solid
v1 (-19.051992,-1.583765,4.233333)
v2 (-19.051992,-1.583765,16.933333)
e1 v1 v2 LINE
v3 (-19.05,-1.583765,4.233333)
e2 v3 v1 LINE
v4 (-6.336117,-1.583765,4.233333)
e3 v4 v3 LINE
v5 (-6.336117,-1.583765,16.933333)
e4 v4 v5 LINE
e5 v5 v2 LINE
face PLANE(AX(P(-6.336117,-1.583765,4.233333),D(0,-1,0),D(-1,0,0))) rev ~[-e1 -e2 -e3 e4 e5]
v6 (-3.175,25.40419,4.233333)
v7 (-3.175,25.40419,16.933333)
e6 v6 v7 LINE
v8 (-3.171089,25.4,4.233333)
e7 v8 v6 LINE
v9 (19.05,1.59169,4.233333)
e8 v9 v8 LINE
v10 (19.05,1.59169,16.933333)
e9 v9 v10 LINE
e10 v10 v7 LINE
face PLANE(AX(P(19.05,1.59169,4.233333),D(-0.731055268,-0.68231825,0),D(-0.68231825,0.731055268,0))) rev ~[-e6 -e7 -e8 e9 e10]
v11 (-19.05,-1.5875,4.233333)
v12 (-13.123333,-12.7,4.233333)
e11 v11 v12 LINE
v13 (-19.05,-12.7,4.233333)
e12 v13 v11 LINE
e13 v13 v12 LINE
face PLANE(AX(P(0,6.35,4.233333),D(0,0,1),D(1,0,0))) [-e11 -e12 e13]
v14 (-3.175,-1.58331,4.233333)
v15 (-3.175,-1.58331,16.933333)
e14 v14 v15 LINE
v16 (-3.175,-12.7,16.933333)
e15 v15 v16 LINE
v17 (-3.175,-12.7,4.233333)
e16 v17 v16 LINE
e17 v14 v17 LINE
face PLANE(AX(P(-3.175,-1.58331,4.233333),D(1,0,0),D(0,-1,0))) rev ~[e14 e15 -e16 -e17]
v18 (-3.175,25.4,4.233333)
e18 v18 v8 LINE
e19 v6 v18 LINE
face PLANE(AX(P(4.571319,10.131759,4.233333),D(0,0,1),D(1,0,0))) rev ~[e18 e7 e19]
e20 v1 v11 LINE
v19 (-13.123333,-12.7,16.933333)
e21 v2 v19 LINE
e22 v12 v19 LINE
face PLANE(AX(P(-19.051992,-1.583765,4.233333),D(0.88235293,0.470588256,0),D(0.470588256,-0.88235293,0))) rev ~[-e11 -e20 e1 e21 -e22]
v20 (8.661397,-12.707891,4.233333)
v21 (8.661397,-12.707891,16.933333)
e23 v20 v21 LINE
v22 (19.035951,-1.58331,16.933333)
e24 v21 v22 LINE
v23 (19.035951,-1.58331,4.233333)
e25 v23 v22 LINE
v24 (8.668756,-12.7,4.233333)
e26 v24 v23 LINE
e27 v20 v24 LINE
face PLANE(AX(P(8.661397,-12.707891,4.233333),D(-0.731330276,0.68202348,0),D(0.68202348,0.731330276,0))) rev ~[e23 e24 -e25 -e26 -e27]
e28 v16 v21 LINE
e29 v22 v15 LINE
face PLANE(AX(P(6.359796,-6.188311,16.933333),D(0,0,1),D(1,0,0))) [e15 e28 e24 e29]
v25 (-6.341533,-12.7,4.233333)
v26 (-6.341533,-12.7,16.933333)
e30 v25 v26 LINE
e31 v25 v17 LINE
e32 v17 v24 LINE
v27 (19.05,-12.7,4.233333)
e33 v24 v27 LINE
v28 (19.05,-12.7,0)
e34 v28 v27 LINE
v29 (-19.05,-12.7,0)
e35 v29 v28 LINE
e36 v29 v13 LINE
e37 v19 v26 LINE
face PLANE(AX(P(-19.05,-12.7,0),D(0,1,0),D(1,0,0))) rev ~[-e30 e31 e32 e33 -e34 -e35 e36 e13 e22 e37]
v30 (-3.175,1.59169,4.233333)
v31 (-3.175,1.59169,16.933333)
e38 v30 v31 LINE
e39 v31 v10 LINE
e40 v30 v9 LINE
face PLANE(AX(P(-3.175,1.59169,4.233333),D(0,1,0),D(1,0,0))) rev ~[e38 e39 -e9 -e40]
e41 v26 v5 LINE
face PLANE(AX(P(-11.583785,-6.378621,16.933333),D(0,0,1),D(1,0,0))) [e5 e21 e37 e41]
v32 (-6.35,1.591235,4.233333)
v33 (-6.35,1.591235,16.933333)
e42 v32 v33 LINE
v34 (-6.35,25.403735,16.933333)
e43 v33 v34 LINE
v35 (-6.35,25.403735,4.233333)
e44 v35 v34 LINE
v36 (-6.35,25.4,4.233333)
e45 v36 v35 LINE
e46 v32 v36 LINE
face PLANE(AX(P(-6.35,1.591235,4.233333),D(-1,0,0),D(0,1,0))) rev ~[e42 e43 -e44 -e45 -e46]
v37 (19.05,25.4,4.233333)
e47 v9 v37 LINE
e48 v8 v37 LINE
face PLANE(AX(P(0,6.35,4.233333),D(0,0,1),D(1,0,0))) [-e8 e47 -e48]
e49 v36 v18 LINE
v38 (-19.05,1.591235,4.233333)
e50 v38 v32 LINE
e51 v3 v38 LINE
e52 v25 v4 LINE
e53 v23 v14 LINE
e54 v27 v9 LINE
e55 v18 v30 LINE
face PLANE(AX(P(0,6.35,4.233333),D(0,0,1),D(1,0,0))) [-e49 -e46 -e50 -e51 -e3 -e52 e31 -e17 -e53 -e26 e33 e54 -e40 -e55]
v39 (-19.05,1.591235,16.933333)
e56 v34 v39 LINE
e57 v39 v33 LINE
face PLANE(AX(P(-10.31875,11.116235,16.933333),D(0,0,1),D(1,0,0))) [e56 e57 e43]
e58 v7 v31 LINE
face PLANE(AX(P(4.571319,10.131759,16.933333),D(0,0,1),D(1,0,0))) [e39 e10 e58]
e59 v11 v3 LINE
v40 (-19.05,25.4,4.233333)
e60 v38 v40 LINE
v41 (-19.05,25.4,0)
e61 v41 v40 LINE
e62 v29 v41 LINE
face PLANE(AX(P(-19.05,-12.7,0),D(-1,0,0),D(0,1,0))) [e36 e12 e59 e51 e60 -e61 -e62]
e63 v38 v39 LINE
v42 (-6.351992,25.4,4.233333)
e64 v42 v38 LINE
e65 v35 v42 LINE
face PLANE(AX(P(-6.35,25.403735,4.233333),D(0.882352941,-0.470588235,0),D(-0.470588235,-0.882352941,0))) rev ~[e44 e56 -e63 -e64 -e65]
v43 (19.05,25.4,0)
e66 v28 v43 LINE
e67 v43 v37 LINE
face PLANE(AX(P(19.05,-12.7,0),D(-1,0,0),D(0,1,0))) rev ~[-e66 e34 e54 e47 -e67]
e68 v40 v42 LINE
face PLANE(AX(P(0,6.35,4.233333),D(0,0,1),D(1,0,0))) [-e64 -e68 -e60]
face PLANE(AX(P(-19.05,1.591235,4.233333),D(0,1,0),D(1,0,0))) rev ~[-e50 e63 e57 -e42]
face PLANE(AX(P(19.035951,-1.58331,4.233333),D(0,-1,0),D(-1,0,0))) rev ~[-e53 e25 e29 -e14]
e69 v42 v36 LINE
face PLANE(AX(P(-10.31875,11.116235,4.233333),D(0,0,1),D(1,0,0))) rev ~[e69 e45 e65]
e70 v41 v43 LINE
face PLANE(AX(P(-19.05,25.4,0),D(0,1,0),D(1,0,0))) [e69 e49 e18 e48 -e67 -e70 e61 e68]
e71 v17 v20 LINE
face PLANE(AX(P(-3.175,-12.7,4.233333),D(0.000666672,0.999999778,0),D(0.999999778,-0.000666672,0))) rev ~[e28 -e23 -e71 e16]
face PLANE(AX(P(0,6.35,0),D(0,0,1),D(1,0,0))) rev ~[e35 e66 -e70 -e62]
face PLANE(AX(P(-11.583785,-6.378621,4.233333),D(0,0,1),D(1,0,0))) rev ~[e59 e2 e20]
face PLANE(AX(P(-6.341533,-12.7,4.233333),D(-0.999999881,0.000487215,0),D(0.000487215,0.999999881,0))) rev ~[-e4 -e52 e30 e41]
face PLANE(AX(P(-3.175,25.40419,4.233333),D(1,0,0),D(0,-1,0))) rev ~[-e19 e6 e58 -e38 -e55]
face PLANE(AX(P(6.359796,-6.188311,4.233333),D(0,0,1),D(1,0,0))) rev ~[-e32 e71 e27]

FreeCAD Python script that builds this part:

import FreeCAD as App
import Part
import Sketcher
from FreeCAD import Vector
Q = App.Units.Quantity

doc = App.newDocument("Part")
params = doc.addObject("Spreadsheet::Sheet", "Params")
for row, (alias, value) in enumerate([
    ("sketch1_width", "1.5 in"),
    ("pad1_length", "4.233333 mm"),
    ("sketch2_width", "0.5 in"),
    ("sketch2_width2", "0.267 in"),
    ("sketch2_width3", "0.875 in"),
    ("sketch2_height", "0.9375 in"),
    ("sketch2_length", "0.496 in"),
    ("pad2_length", "0.5 in"),
], start=1):
    params.set(f"A{row}", alias)
    params.set(f"B{row}", "=" + value)
    params.setAlias(f"B{row}", alias)

body = doc.addObject("PartDesign::Body", "Body")

sketch1 = body.newObject("Sketcher::SketchObject", "Sketch")
sketch1.AttachmentSupport = (doc.getObject("XY_Plane"), [""])
sketch1.MapMode = "FlatFace"
sketch1.addGeometry([
    Part.LineSegment(Vector(-19.05, 25.4, 0), Vector(-19.05, -12.7, 0)),
    Part.LineSegment(Vector(-19.05, -12.7, 0), Vector(19.05, -12.7, 0)),
    Part.LineSegment(Vector(19.05, -12.7, 0), Vector(19.05, 25.4, 0)),
    Part.LineSegment(Vector(19.05, 25.4, 0), Vector(-19.05, 25.4, 0)),
], False)
sketch1.addConstraint([
    Sketcher.Constraint("Coincident", 0, 2, 1, 1),
    Sketcher.Constraint("Coincident", 1, 2, 2, 1),
    Sketcher.Constraint("Coincident", 2, 2, 3, 1),
    Sketcher.Constraint("Coincident", 3, 2, 0, 1),
    Sketcher.Constraint("Vertical", 0),
    Sketcher.Constraint("Horizontal", 1),
    Sketcher.Constraint("Vertical", 2),
    Sketcher.Constraint("Horizontal", 3),
    Sketcher.Constraint("Equal", 3, 0),
    Sketcher.Constraint("DistanceX", 1, 1, 1, 2, Q("1.5 in")),
    Sketcher.Constraint("DistanceY", -1, 1, 2, 2, Q("1 in")),
    Sketcher.Constraint("DistanceX", 0, 2, -1, 1, Q("0.75 in")),
])
sketch1.setExpression("Constraints[9]", "Params.sketch1_width")
pad1 = body.newObject("PartDesign::Pad", "Pad")
pad1.Profile = sketch1
pad1.setExpression("Length", "Params.pad1_length")

sketch2 = body.newObject("Sketcher::SketchObject", "Sketch001")
sketch2.AttachmentSupport = (doc.getObject("XY_Plane"), [""])
sketch2.MapMode = "FlatFace"
sketch2.AttachmentOffset = App.Placement(Vector(0, 0, 4.233333), App.Rotation())
sketch2.addGeometry([
    Part.LineSegment(Vector(-19.05, 1.591235, 0), Vector(-6.35, 1.591235, 0)),
    Part.LineSegment(Vector(-6.35, 1.591235, 0), Vector(-6.35, 25.403735, 0)),
    Part.LineSegment(Vector(-6.35, 25.403735, 0), Vector(-19.05, 1.591235, 0)),
    Part.LineSegment(Vector(-6.336117, -1.583765, 0), Vector(-19.051992, -1.583765, 0)),
    Part.LineSegment(Vector(-19.051992, -1.583765, 0), Vector(-13.123333, -12.7, 0)),
    Part.LineSegment(Vector(-13.123333, -12.7, 0), Vector(-6.341533, -12.7, 0)),
    Part.LineSegment(Vector(-6.341533, -12.7, 0), Vector(-6.336117, -1.583765, 0)),
    Part.LineSegment(Vector(19.05, 1.59169, 0), Vector(-3.175, 25.40419, 0)),
    Part.LineSegment(Vector(-3.175, 25.40419, 0), Vector(-3.175, 1.59169, 0)),
    Part.LineSegment(Vector(-3.175, 1.59169, 0), Vector(19.05, 1.59169, 0)),
    Part.LineSegment(Vector(19.035951, -1.58331, 0), Vector(-3.175, -1.58331, 0)),
    Part.LineSegment(Vector(-3.175, -1.58331, 0), Vector(-3.175, -12.7, 0)),
    Part.LineSegment(Vector(-3.175, -12.7, 0), Vector(8.661397, -12.707891, 0)),
    Part.LineSegment(Vector(8.661397, -12.707891, 0), Vector(19.035951, -1.58331, 0)),
], False)
sketch2.addConstraint([
    Sketcher.Constraint("Coincident", 0, 2, 1, 1),
    Sketcher.Constraint("Coincident", 1, 2, 2, 1),
    Sketcher.Constraint("Coincident", 2, 2, 0, 1),
    Sketcher.Constraint("Coincident", 3, 2, 4, 1),
    Sketcher.Constraint("Coincident", 4, 2, 5, 1),
    Sketcher.Constraint("Coincident", 5, 2, 6, 1),
    Sketcher.Constraint("Coincident", 6, 2, 3, 1),
    Sketcher.Constraint("Coincident", 7, 2, 8, 1),
    Sketcher.Constraint("Coincident", 8, 2, 9, 1),
    Sketcher.Constraint("Coincident", 9, 2, 7, 1),
    Sketcher.Constraint("Coincident", 10, 2, 11, 1),
    Sketcher.Constraint("Coincident", 11, 2, 12, 1),
    Sketcher.Constraint("Coincident", 12, 2, 13, 1),
    Sketcher.Constraint("Coincident", 13, 2, 10, 1),
    Sketcher.Constraint("Horizontal", 0),
    Sketcher.Constraint("Vertical", 1),
    Sketcher.Constraint("Horizontal", 3),
    Sketcher.Constraint("Horizontal", 5),
    Sketcher.Constraint("Vertical", 8),
    Sketcher.Constraint("Horizontal", 9),
    Sketcher.Constraint("Horizontal", 10),
    Sketcher.Constraint("Vertical", 11),
    Sketcher.Constraint("Horizontal", 5, 2, 11, 2),
    Sketcher.Constraint("Vertical", 8, 2, 10, 2),
    Sketcher.Constraint("Equal", 1, 8),
    Sketcher.Constraint("DistanceX", 0, 1, 0, 2, Q("0.5 in")),
    Sketcher.Constraint("DistanceX", 0, 2, 9, 2, Q("1 in")),
    Sketcher.Constraint("DistanceY", 4, 2, -1, 1, Q("0.5 in")),
    Sketcher.Constraint("DistanceX", 5, 1, 5, 2, Q("0.267 in")),
    Sketcher.Constraint("DistanceX", 9, 1, 9, 2, Q("0.875 in")),
    Sketcher.Constraint("DistanceY", 1, 1, 1, 2, Q("0.9375 in")),
    Sketcher.Constraint("DistanceX", 0, 2, -1, 1, Q("0.25 in")),
    Sketcher.Constraint("Distance", 4, Q("0.496 in")),
    Sketcher.Constraint("Distance", 12, Q("0.466 in")),
    Sketcher.Constraint("DistanceY", 3, 2, 2, 2, Q("0.125 in")),
    Sketcher.Constraint("DistanceY", 10, 2, 8, 2, Q("0.125 in")),
    Sketcher.Constraint("DistanceX", 10, 2, 10, 1, 22.210951),
    Sketcher.Constraint("DistanceY", 11, 2, 11, 1, 11.11669),
    Sketcher.Constraint("DistanceX", 3, 2, 3, 1, 12.715875),
    Sketcher.Constraint("DistanceX", 3, 2, -1, 1, 19.051992),
    Sketcher.Constraint("DistanceY", 12, 2, -1, 1, 12.707891),
    Sketcher.Constraint("DistanceX", 3, 2, 4, 2, 5.928659),
])
sketch2.setExpression("Constraints[25]", "Params.sketch2_width")
sketch2.setExpression("Constraints[28]", "Params.sketch2_width2")
sketch2.setExpression("Constraints[29]", "Params.sketch2_width3")
sketch2.setExpression("Constraints[30]", "Params.sketch2_height")
sketch2.setExpression("Constraints[32]", "Params.sketch2_length")
pad2 = body.newObject("PartDesign::Pad", "Pad001")
pad2.Profile = sketch2
pad2.setExpression("Length", "Params.pad2_length")

doc.recompute()
